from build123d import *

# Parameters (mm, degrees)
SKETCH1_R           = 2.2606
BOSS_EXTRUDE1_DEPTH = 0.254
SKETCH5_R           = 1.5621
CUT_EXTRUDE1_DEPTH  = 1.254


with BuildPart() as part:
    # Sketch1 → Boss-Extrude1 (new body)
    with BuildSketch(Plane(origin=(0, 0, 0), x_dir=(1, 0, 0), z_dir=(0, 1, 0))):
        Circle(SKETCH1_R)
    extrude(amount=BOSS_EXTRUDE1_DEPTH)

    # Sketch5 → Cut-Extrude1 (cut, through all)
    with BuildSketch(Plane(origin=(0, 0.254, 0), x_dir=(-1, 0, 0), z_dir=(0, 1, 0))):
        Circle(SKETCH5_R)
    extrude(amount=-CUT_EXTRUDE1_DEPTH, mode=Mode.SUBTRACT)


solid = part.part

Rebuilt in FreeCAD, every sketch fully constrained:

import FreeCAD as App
import Part
import Sketcher

V = App.Vector
Q = App.Units.Quantity

doc = App.newDocument("Part")
params = doc.addObject("Spreadsheet::Sheet", "Params")
for row, (alias, value) in enumerate([
    ("sketch1_diameter", "0.178 in"),
    ("pad1_length", "0.01 in"),
    ("sketch2_diameter", "0.123 in"),
], start=1):
    params.set(f"A{row}", alias)
    params.set(f"B{row}", "=" + value)
    params.setAlias(f"B{row}", alias)

body = doc.addObject("PartDesign::Body", "Body")

# Sketch on XZ plane
sketch1 = body.newObject("Sketcher::SketchObject", "Sketch")
sketch1.AttachmentSupport = (doc.getObject("XZ_Plane"), [""])
sketch1.MapMode = "FlatFace"
sketch1.addGeometry(Part.Circle(V(0, 0, 0), V(0, 0, 1), 2.2606), False)
sketch1.addConstraint([
    Sketcher.Constraint("Coincident", 0, 3, -1, 1),
    Sketcher.Constraint("Diameter", 0, Q("0.178 in")),
])
sketch1.setExpression("Constraints[1]", "Params.sketch1_diameter")
pad1 = body.newObject("PartDesign::Pad", "Pad")
pad1.Profile = sketch1
pad1.setExpression("Length", "Params.pad1_length")
pad1.Reversed = True

# Sketch on XZ plane
sketch2 = body.newObject("Sketcher::SketchObject", "Sketch001")
sketch2.AttachmentSupport = (doc.getObject("XZ_Plane"), [""])
sketch2.MapMode = "FlatFace"
sketch2.AttachmentOffset = App.Placement(V(0, 0, -0.01 * 25.4), App.Rotation())
sketch2.addGeometry(Part.Circle(V(0, 0, 0), V(0, 0, 1), 1.5621), False)
sketch2.addConstraint([
    Sketcher.Constraint("Coincident", 0, 3, -1, 1),
    Sketcher.Constraint("Diameter", 0, Q("0.123 in")),
])
sketch2.setExpression("Constraints[1]", "Params.sketch2_diameter")
pocket1 = body.newObject("PartDesign::Pocket", "Pocket")
pocket1.Profile = sketch2
pocket1.Type = "ThroughAll"
pocket1.Reversed = True

doc.recompute()
